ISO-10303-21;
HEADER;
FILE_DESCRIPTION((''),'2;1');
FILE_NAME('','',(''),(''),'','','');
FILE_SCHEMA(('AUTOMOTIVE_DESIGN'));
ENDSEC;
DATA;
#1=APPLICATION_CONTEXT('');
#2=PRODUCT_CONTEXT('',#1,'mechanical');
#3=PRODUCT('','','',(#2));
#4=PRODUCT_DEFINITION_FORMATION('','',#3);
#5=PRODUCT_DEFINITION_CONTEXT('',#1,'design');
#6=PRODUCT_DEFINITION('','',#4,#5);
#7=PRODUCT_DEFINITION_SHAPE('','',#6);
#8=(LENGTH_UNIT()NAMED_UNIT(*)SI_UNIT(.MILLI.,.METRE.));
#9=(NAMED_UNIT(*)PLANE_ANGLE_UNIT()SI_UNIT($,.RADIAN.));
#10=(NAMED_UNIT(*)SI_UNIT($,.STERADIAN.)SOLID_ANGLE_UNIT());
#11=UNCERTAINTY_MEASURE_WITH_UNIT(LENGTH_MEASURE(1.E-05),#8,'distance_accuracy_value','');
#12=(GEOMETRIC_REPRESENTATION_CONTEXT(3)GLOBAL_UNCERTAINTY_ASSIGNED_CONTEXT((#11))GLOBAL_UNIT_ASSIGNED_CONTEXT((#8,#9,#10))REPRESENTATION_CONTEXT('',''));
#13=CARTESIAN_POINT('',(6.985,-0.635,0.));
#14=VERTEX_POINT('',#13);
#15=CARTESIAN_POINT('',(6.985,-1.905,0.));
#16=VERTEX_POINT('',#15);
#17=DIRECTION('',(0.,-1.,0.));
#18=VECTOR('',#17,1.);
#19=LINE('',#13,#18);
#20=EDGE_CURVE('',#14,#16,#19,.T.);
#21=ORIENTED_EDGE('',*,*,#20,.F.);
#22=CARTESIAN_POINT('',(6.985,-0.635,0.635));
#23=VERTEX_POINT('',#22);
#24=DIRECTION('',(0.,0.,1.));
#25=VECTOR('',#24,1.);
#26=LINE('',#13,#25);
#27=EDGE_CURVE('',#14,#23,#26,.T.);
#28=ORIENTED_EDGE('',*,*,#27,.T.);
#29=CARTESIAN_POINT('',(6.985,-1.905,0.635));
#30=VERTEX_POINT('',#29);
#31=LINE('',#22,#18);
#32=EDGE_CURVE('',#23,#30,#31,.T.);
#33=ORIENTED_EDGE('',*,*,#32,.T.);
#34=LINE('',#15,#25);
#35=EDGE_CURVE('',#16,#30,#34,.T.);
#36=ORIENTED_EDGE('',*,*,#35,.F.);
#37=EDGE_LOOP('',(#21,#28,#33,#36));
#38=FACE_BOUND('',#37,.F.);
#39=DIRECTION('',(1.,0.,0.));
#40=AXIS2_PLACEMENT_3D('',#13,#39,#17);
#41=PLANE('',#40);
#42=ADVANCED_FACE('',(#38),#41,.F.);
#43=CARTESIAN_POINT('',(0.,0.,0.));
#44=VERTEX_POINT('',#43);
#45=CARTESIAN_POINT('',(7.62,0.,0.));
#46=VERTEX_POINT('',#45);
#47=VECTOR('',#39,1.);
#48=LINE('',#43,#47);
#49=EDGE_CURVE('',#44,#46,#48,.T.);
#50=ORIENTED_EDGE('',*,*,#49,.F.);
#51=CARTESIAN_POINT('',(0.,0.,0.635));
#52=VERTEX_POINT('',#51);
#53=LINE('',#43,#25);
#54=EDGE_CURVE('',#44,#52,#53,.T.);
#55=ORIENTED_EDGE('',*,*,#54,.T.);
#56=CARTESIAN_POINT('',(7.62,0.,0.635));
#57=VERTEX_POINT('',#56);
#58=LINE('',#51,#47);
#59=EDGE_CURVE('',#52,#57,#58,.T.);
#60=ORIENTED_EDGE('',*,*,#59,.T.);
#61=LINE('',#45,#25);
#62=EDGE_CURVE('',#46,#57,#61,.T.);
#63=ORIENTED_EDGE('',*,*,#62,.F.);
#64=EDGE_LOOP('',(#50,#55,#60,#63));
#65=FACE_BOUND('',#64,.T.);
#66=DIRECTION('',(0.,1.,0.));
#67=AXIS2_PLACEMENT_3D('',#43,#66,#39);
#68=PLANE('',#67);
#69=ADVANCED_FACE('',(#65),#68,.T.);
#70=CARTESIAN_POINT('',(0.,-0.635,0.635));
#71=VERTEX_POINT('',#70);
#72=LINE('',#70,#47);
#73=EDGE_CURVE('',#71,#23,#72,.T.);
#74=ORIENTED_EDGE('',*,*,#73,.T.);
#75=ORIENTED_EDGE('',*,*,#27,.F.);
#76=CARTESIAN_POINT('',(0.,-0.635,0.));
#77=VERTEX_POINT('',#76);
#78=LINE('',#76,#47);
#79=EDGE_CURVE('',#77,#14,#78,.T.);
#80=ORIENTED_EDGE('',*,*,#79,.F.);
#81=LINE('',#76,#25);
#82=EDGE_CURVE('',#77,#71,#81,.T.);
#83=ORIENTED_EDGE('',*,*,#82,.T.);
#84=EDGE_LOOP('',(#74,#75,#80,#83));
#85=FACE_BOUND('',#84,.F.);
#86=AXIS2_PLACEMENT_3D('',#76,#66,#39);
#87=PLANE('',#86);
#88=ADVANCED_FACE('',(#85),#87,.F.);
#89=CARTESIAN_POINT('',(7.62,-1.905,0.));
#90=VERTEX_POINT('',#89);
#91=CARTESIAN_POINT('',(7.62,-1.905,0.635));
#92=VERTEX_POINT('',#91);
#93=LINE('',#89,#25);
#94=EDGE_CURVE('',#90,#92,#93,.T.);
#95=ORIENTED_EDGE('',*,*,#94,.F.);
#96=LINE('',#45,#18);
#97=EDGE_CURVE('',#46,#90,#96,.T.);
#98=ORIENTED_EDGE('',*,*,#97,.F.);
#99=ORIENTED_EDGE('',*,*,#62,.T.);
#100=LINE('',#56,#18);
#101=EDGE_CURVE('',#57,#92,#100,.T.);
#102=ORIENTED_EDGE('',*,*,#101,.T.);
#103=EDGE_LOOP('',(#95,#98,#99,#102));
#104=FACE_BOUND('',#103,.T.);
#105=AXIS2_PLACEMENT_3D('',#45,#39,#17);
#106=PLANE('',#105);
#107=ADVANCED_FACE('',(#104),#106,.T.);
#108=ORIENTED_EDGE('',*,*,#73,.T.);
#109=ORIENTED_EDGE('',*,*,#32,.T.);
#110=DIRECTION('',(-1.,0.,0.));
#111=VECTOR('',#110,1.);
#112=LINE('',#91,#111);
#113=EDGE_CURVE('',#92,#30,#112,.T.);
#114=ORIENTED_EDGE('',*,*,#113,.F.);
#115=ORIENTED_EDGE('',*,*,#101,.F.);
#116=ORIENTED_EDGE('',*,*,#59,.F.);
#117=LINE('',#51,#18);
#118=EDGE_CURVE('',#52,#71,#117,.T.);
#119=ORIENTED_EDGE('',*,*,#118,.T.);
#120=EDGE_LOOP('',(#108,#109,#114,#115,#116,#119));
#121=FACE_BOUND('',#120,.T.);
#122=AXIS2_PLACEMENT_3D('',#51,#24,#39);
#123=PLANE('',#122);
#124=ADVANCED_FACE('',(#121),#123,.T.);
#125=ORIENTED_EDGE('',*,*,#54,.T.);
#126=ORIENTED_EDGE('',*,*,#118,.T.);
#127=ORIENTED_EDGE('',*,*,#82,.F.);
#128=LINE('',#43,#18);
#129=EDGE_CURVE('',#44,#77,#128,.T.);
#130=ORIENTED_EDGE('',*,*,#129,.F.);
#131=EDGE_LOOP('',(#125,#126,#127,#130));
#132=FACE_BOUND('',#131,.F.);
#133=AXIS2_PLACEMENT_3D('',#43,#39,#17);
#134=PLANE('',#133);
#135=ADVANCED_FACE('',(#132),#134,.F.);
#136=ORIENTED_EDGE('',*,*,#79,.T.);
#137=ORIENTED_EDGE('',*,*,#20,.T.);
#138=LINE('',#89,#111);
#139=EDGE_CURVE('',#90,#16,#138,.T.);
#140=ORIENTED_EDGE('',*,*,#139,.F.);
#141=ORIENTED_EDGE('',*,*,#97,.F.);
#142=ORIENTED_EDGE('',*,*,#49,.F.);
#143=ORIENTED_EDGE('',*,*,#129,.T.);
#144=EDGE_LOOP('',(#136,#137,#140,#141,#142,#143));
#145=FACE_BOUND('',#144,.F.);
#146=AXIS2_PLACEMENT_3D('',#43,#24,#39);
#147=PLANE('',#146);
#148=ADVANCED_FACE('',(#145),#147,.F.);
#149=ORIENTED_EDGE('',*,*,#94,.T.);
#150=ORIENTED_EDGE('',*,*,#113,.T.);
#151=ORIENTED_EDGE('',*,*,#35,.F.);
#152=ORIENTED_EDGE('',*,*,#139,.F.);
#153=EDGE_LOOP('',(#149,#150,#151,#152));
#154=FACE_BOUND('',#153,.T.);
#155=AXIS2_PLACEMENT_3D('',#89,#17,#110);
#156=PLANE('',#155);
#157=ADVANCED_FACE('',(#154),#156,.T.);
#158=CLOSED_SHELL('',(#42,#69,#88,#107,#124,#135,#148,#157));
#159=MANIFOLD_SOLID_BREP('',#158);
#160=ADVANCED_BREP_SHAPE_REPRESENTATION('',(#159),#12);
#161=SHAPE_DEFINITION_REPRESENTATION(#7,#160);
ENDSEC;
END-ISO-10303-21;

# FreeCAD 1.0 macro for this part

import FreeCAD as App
import Part
import Sketcher
from FreeCAD import Vector
Q = App.Units.Quantity


def add_polygon(sketch, points):
    """Adds a closed chain of lines whose ends are joined by coincident constraints."""
    first, n = sketch.GeometryCount, len(points)
    for a, b in zip(points, points[1:] + points[:1]):
        sketch.addGeometry(Part.LineSegment(App.Vector(*a, 0), App.Vector(*b, 0)), False)
    for i in range(n):
        sketch.addConstraint(Sketcher.Constraint("Coincident", first + i, 2, first + (i + 1) % n, 1))

doc = App.newDocument("Part")
body = doc.addObject("PartDesign::Body", "Body")

# Sketch on XY plane
sketch1 = doc.addObject("Sketcher::SketchObject", "Sketch")
body.addObject(sketch1)
sketch1.AttachmentSupport = (doc.XY_Plane, [""])
sketch1.MapMode = "FlatFace"
add_polygon(sketch1, [(7.6, 0), (0, 0), (0, -0.6), (7, -0.6), (7, -1.9), (7.6, -1.9)])  # lines 0-5
sketch1.addConstraint([
    Sketcher.Constraint("Horizontal", 0),
    Sketcher.Constraint("Vertical", 1),
    Sketcher.Constraint("Horizontal", 2),
    Sketcher.Constraint("Vertical", 3),
    Sketcher.Constraint("Horizontal", 4),
    Sketcher.Constraint("Vertical", 5),
    Sketcher.Constraint("Coincident", 0, 2, -1, 1),
    Sketcher.Constraint("Equal", 4, 1),
    Sketcher.Constraint("DistanceX", 0, 2, 0, 1, Q("0.3 in")),
    Sketcher.Constraint("DistanceX", 4, 1, 4, 2, Q("0.025 in")),
    Sketcher.Constraint("DistanceY", 5, 1, 5, 2, Q("0.075 in")),
])
pad1 = doc.addObject("PartDesign::Pad", "Pad")
body.addObject(pad1)
pad1.Profile = sketch1
pad1.Length = Q("0.025 in")

doc.recompute()
